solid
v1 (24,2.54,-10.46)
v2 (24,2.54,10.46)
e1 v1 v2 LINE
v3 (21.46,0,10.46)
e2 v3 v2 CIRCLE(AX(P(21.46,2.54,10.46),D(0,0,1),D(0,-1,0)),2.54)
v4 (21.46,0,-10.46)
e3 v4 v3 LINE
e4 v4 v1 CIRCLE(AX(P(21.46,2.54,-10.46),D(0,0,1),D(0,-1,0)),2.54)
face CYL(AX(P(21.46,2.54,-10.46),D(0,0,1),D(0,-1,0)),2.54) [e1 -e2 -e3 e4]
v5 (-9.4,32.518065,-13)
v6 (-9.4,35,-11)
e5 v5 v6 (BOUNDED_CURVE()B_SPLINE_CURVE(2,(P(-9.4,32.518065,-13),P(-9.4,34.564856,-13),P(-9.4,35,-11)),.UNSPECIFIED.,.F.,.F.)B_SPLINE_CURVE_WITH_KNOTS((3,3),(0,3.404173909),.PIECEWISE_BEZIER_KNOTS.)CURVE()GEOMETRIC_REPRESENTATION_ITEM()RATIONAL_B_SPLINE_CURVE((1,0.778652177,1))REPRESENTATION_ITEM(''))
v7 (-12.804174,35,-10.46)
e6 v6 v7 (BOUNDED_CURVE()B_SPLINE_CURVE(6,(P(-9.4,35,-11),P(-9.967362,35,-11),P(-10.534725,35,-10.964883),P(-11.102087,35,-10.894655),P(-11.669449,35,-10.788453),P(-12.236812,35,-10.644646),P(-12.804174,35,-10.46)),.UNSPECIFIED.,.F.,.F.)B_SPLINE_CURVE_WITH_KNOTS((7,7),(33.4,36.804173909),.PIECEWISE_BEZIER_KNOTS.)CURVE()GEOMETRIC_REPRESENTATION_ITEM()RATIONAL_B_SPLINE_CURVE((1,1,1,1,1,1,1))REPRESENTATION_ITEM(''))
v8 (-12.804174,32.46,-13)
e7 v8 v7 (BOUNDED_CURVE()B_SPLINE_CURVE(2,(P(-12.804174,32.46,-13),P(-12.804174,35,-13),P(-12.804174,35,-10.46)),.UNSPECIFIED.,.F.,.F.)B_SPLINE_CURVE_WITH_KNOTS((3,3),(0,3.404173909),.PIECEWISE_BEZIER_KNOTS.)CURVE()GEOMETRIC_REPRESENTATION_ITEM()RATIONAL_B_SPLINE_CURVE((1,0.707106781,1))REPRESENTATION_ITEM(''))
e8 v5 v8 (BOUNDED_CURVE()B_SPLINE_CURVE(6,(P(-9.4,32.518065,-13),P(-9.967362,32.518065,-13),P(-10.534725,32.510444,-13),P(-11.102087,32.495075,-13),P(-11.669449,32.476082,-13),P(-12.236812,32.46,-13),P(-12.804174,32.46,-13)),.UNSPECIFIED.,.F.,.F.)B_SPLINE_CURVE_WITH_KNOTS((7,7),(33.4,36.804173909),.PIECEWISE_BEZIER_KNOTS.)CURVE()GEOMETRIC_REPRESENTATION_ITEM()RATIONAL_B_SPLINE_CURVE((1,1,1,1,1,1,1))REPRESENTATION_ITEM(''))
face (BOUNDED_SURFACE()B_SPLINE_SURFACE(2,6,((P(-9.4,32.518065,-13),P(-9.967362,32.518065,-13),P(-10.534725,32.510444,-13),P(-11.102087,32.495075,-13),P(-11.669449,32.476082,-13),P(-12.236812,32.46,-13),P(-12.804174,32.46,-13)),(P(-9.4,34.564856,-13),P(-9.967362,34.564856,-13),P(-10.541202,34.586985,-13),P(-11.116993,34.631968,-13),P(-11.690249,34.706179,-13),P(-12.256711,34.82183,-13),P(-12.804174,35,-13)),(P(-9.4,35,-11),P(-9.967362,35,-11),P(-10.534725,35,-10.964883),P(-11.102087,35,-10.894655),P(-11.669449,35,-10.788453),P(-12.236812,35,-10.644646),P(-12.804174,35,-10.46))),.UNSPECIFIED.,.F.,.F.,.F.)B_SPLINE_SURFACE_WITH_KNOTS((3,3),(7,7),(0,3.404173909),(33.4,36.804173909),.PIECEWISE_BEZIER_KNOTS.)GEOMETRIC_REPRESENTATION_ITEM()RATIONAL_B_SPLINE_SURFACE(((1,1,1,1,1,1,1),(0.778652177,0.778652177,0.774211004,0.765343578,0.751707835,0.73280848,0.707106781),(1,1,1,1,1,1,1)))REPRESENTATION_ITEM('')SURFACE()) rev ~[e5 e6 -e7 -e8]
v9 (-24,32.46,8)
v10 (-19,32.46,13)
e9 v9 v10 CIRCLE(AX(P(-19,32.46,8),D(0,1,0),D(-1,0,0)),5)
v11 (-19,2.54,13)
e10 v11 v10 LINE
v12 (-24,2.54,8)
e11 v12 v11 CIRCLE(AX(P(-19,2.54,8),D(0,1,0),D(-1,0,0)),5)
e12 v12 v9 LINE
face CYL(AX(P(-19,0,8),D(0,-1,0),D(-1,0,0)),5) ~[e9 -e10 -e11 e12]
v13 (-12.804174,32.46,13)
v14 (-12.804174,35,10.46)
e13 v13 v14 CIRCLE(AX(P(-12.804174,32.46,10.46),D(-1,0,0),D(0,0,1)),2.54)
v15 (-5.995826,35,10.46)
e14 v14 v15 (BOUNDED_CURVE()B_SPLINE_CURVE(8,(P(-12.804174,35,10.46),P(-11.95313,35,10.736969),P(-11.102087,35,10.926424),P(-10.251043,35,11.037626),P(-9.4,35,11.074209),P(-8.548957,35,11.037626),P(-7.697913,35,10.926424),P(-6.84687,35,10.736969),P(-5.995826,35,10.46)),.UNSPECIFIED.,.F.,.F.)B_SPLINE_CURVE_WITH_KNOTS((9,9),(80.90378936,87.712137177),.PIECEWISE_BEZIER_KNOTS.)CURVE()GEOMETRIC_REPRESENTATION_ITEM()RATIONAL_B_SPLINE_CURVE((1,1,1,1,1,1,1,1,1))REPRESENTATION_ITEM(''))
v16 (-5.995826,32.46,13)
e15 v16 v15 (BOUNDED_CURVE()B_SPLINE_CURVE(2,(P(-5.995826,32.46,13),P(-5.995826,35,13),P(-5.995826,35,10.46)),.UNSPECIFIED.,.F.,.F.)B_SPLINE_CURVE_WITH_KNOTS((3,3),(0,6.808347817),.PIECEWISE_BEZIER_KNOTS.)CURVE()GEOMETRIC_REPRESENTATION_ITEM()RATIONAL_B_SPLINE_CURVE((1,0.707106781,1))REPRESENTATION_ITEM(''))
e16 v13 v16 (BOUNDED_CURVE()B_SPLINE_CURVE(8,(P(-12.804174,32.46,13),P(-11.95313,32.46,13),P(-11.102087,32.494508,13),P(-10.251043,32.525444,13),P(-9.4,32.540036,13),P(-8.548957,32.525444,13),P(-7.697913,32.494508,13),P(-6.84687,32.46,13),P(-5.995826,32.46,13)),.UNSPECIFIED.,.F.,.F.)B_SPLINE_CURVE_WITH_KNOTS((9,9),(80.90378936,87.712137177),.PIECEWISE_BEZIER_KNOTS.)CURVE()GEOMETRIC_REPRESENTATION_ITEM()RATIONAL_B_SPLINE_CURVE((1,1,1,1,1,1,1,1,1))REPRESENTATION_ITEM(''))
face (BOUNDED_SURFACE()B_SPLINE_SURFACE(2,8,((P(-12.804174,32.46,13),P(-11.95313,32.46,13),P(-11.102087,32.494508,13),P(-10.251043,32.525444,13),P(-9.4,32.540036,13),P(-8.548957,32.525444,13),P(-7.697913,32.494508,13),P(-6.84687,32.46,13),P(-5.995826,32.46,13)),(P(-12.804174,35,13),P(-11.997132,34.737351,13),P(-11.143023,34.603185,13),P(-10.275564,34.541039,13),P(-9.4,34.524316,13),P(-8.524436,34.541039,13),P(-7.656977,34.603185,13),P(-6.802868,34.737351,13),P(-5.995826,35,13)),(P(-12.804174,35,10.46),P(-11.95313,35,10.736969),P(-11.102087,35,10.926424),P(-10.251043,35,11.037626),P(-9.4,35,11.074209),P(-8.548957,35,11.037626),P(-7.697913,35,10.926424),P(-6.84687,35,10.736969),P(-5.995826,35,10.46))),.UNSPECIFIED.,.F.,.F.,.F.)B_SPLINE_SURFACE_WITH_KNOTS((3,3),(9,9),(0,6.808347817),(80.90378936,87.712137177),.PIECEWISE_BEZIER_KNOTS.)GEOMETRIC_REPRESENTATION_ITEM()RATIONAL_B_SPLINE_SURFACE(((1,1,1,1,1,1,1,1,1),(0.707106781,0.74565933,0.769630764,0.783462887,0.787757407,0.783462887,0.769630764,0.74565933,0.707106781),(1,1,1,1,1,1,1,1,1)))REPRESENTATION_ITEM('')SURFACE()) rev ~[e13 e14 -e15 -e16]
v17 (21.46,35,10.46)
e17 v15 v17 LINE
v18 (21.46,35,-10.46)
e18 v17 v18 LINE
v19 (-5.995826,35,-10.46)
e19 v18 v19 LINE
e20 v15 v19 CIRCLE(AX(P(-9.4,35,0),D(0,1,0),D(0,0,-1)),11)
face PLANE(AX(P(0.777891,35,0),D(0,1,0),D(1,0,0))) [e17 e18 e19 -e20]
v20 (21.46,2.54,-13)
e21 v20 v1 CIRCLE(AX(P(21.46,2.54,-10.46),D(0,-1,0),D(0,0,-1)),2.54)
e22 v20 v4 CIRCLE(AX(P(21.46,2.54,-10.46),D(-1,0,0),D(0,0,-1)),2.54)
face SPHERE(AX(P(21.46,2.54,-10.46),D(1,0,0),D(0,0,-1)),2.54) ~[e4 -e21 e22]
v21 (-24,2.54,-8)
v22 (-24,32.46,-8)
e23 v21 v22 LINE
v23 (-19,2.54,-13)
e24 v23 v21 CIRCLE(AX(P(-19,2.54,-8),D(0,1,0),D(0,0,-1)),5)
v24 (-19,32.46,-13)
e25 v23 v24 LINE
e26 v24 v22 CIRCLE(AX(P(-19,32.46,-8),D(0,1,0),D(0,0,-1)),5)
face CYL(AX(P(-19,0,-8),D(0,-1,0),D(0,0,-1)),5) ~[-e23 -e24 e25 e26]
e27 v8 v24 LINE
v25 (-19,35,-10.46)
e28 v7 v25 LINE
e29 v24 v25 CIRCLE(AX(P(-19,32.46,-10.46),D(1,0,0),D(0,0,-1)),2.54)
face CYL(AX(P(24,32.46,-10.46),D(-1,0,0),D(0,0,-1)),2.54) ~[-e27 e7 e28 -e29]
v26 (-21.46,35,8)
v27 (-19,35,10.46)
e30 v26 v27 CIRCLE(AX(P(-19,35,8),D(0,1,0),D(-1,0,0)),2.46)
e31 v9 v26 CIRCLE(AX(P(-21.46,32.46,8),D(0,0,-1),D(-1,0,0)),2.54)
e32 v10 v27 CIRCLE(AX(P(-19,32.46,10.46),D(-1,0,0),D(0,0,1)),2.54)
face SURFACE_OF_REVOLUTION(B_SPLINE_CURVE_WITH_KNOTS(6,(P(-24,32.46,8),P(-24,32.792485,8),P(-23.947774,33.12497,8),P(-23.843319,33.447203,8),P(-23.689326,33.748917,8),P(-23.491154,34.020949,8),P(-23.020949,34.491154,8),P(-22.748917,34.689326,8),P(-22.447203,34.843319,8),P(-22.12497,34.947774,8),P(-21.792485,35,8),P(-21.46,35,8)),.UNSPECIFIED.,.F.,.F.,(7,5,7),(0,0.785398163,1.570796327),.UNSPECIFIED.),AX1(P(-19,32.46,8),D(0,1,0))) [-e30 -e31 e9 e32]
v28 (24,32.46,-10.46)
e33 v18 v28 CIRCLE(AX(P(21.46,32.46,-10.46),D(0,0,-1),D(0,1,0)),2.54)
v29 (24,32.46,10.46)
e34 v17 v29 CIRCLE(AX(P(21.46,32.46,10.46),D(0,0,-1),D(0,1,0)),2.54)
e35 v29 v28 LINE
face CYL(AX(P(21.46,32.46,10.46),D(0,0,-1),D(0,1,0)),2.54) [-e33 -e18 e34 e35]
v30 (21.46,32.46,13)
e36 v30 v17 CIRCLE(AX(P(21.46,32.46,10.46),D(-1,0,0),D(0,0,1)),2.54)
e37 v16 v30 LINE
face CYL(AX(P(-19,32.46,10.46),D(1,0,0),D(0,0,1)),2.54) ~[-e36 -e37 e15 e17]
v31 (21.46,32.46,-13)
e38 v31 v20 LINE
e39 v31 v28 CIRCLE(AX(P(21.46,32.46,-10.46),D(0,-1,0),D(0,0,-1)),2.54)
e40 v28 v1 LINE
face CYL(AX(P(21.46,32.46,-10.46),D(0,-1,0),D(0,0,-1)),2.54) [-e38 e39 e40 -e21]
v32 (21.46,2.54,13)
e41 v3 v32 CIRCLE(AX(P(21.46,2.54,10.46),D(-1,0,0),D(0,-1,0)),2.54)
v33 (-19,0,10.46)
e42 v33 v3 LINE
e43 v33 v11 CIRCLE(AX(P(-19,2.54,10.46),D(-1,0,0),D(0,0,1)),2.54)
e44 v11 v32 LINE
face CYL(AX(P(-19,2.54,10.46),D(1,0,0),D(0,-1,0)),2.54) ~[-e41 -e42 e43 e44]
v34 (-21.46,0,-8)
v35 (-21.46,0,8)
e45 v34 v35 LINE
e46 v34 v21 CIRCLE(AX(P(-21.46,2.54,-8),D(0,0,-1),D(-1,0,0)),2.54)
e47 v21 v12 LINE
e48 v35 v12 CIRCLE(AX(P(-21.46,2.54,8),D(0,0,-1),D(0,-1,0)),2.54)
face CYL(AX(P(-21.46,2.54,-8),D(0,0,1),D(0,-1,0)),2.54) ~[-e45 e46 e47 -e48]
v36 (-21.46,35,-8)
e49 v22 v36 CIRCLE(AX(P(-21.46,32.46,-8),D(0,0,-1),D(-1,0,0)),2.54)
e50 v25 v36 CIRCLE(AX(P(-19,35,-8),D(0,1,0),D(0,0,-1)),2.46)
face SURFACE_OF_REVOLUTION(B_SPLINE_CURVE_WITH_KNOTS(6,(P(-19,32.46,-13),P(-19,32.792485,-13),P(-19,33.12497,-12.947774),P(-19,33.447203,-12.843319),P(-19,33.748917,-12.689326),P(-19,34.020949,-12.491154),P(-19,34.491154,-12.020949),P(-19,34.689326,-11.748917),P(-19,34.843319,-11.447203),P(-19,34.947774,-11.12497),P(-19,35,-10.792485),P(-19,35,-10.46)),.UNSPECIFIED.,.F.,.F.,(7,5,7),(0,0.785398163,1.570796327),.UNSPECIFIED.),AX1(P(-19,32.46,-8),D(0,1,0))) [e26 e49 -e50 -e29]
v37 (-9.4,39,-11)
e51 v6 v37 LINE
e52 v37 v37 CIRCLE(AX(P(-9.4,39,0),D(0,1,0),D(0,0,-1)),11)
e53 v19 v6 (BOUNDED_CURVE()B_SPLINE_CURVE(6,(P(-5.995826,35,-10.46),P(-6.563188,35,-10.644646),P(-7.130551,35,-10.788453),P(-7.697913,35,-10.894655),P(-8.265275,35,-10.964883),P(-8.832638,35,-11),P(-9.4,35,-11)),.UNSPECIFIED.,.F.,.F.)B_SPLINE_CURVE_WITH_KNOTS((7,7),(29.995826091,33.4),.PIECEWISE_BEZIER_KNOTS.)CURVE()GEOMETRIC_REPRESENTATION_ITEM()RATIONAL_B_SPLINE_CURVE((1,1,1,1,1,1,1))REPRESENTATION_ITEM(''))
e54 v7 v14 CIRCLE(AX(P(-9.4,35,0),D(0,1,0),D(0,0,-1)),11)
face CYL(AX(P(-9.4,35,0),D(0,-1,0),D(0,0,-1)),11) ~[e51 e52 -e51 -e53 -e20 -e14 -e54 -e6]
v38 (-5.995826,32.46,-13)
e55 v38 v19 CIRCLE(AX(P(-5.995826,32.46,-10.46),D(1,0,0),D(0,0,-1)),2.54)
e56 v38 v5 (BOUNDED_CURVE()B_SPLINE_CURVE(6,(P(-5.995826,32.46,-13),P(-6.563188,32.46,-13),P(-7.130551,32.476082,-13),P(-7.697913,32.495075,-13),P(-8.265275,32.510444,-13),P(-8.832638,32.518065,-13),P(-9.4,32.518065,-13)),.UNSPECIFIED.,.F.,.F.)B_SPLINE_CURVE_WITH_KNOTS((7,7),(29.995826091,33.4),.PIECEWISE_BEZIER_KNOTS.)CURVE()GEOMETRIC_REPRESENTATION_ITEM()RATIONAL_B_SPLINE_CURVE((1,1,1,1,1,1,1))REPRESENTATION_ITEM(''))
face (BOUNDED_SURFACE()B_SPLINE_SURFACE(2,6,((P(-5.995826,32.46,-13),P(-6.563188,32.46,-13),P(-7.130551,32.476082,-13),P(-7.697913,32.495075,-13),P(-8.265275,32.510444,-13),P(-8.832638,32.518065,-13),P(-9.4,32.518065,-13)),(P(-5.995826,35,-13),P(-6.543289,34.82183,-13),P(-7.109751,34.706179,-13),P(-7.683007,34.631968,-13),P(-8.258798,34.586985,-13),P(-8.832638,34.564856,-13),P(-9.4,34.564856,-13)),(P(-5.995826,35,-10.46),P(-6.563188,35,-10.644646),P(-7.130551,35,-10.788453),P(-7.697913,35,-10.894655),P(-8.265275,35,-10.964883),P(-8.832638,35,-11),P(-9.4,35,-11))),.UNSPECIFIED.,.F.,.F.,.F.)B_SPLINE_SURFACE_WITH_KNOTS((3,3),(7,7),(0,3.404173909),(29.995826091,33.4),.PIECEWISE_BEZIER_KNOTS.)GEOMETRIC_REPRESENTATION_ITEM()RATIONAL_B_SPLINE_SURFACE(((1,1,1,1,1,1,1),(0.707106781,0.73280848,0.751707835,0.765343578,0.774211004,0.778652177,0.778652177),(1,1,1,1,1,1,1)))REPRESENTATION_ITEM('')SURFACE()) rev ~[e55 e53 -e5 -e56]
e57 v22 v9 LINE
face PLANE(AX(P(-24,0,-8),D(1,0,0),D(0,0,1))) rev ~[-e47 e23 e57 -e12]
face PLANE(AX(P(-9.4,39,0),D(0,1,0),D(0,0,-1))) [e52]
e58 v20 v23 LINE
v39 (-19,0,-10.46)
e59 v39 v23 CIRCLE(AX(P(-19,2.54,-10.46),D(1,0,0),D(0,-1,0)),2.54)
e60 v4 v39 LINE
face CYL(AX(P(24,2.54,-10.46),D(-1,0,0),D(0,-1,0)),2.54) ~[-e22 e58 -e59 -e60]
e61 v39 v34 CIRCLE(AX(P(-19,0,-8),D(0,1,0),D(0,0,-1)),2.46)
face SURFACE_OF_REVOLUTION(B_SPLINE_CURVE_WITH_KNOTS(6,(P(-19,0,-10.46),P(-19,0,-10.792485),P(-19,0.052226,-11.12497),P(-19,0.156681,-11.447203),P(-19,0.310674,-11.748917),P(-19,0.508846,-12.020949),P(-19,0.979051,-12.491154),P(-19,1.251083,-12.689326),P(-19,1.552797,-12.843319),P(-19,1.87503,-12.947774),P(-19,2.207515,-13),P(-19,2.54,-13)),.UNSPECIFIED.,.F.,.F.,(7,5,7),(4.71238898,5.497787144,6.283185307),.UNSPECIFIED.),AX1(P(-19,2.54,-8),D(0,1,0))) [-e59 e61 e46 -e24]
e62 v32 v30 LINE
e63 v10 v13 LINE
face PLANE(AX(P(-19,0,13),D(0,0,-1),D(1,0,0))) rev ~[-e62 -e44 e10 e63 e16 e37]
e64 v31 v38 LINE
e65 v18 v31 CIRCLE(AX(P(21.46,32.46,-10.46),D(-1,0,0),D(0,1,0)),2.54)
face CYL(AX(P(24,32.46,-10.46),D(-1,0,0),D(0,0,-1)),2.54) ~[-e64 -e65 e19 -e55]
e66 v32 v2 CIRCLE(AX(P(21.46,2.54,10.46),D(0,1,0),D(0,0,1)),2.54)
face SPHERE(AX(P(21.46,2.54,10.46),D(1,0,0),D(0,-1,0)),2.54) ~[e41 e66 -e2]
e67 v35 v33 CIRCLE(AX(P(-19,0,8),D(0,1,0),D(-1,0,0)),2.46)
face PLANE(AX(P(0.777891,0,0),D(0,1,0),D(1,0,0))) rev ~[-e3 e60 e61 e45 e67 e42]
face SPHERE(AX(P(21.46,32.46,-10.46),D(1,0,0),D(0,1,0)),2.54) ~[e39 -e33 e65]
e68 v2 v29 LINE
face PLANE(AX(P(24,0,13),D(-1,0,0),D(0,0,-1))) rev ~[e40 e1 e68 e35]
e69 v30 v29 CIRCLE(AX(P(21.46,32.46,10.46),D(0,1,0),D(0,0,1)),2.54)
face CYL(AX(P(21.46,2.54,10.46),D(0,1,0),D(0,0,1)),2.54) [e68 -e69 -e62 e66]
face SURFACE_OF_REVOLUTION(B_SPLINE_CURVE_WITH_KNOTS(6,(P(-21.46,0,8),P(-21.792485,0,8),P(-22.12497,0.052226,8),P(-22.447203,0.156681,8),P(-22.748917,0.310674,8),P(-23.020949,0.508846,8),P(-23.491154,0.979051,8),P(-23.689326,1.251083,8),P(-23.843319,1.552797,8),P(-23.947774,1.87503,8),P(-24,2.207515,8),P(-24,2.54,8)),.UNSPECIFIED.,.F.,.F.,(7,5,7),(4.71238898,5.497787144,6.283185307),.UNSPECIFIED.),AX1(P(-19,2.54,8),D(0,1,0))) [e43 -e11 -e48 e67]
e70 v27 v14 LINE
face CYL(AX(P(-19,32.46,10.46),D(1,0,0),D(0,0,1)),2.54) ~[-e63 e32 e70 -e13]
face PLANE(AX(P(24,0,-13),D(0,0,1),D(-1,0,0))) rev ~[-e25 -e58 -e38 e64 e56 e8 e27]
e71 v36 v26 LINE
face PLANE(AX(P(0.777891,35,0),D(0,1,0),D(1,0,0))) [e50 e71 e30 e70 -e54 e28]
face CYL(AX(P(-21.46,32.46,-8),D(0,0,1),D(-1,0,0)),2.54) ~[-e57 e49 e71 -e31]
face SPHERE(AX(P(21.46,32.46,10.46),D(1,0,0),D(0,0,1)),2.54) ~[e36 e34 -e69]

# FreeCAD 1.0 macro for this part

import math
import FreeCAD as App
import Part
import Sketcher
from FreeCAD import Vector


def edges_at(feature, points):
    """Names of the edges that pass closest to the given points."""
    edges = feature.Shape.Edges
    near = lambda p: min(range(len(edges)), key=lambda i: edges[i].distToShape(Part.Vertex(*p))[0])
    return sorted({f"Edge{near(p) + 1}" for p in points})

doc = App.newDocument("Part")
body = doc.addObject("PartDesign::Body", "Body")

# Sketch on XZ plane
sketch1 = body.newObject("Sketcher::SketchObject", "Sketch")
sketch1.AttachmentSupport = (doc.getObject("XZ_Plane"), [""])
sketch1.MapMode = "FlatFace"
sketch1.addGeometry([
    Part.LineSegment(Vector(-19, 13, 0), Vector(24, 13, 0)),  # 0
    Part.LineSegment(Vector(24, 13, 0), Vector(24, -13, 0)),  # 1
    Part.LineSegment(Vector(24, -13, 0), Vector(-19, -13, 0)),  # 2
    Part.ArcOfCircle(Part.Circle(Vector(-19, -8, 0), Vector(0, 0, 1), 5), math.radians(180), math.radians(270)),  # 3
    Part.LineSegment(Vector(-24, -8, 0), Vector(-24, 8, 0)),  # 4
    Part.ArcOfCircle(Part.Circle(Vector(-19, 8, 0), Vector(0, 0, 1), 5), math.radians(90), math.radians(180)),  # 5
], False)
sketch1.addConstraint([
    Sketcher.Constraint("Coincident", 0, 2, 1, 1),
    Sketcher.Constraint("Coincident", 1, 2, 2, 1),
    Sketcher.Constraint("Tangent", 2, 2, 3, 2),
    Sketcher.Constraint("Tangent", 3, 1, 4, 1),
    Sketcher.Constraint("Tangent", 4, 2, 5, 2),
    Sketcher.Constraint("Tangent", 5, 1, 0, 1),
    Sketcher.Constraint("Horizontal", 0),
    Sketcher.Constraint("Vertical", 1),
    Sketcher.Constraint("Horizontal", 2),
    Sketcher.Constraint("Vertical", 4),
    Sketcher.Constraint("Equal", 3, 5),
    Sketcher.Constraint("Radius", 3, 5.0),
    Sketcher.Constraint("DistanceX", 0, 1, 0, 2, 43.0),
    Sketcher.Constraint("DistanceY", 1, 2, 1, 1, 26.0),
    Sketcher.Constraint("DistanceX", 3, 3, -1, 1, 19.0),
    Sketcher.Constraint("DistanceY", 3, 3, -1, 1, 8.0),
])
pad1 = body.newObject("PartDesign::Pad", "Pad")
pad1.Profile = sketch1
pad1.Length = 35
pad1.Reversed = True

# Sketch on XZ plane
sketch2 = body.newObject("Sketcher::SketchObject", "Sketch001")
sketch2.AttachmentSupport = (doc.getObject("XZ_Plane"), [""])
sketch2.MapMode = "FlatFace"
sketch2.AttachmentOffset = App.Placement(Vector(0, 0, -35), App.Rotation())
sketch2.addGeometry(Part.Circle(Vector(-9, 0, 0), Vector(0, 0, 1), 11), False)
sketch2.addConstraint([
    Sketcher.Constraint("PointOnObject", 0, 3, -1),
    Sketcher.Constraint("Diameter", 0, 22.0),
    Sketcher.Constraint("DistanceX", 0, 3, -1, 1, 9.4),
])
pad2 = body.newObject("PartDesign::Pad", "Pad001")
pad2.Profile = sketch2
pad2.Length = 4
pad2.Reversed = True
doc.recompute()

fillet = body.newObject("PartDesign::Fillet", "Fillet")
fillet.Base = (pad2, edges_at(pad2, [
    (2.5, 35, 13),
    (-22.536, 35, 11.536),
    (-24, 35, 0),
    (-22.536, 35, -11.536),
    (-24, 0, 0),
    (-22.536, 0, 11.536),
    (2.5, 0, 13),
    (2.5, 35, -13),
    (2.5, 0, -13),
    (-22.536, 0, -11.536),
]))
fillet.Radius = 2.54
doc.recompute()

fillet2 = body.newObject("PartDesign::Fillet", "Fillet001")
fillet2.Base = (fillet, edges_at(fillet, [
    (24, 17.5, 13),
    (24, 0, 0),
    (24, 17.5, -13),
    (24, 35, 0),
    (24, 34.256, 12.256),
    (24, 34.256, -12.256),
    (24, 0.744, -12.256),
    (24, 0.744, 12.256),
]))
fillet2.Radius = 2.54

doc.recompute()
